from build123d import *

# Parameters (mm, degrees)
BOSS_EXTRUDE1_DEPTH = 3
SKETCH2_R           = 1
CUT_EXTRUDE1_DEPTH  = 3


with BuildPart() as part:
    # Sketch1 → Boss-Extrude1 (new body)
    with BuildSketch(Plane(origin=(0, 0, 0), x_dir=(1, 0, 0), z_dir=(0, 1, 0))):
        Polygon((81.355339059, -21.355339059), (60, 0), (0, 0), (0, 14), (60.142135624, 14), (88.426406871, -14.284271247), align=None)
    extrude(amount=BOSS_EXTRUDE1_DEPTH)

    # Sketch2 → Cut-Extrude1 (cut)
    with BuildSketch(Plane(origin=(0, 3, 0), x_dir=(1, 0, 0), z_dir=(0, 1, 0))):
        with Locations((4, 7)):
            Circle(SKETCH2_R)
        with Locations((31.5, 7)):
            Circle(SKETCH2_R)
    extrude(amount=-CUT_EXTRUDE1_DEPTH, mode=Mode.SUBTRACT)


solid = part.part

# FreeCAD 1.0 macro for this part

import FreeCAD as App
import Part
import Sketcher

V = App.Vector
Q = App.Units.Quantity


def add_polygon(sketch, points):
    """Adds a closed chain of lines whose ends are joined by coincident constraints."""
    first, n = sketch.GeometryCount, len(points)
    for a, b in zip(points, points[1:] + points[:1]):
        sketch.addGeometry(Part.LineSegment(App.Vector(*a, 0), App.Vector(*b, 0)), False)
    for i in range(n):
        sketch.addConstraint(Sketcher.Constraint("Coincident", first + i, 2, first + (i + 1) % n, 1))

doc = App.newDocument("Part")
body = doc.addObject("PartDesign::Body", "Body")

# Sketch on XZ plane
sketch1 = body.newObject("Sketcher::SketchObject", "Sketch")
sketch1.AttachmentSupport = (doc.getObject("XZ_Plane"), [""])
sketch1.MapMode = "FlatFace"
add_polygon(sketch1, [(60, 0), (81.355339, 21.355339), (88.426407, 14.284271), (60.142136, -14), (0, -14), (0, 0)])  # lines 0-5
sketch1.addConstraint([
    Sketcher.Constraint("Horizontal", 3),
    Sketcher.Constraint("Vertical", 4),
    Sketcher.Constraint("Horizontal", 5),
    Sketcher.Constraint("Coincident", 4, 2, -1, 1),
    Sketcher.Constraint("Perpendicular", 0, 1),
    Sketcher.Constraint("Perpendicular", 1, 2),
    Sketcher.Constraint("DistanceX", 5, 1, 5, 2, 60.0),
    Sketcher.Constraint("DistanceY", 4, 1, 4, 2, 14.0),
    Sketcher.Constraint("Angle", 0, Q("45 deg")),
    Sketcher.Constraint("Distance", 1, 10.0),
    Sketcher.Constraint("Distance", 2, 40.0),
])
pad1 = body.newObject("PartDesign::Pad", "Pad")
pad1.Profile = sketch1
pad1.Length = 3
pad1.Reversed = True

# Sketch on XZ plane
sketch2 = body.newObject("Sketcher::SketchObject", "Sketch001")
sketch2.AttachmentSupport = (doc.getObject("XZ_Plane"), [""])
sketch2.MapMode = "FlatFace"
sketch2.AttachmentOffset = App.Placement(V(0, 0, -3), App.Rotation())
sketch2.addGeometry([
    Part.Circle(V(4, -7, 0), V(0, 0, 1), 1),
    Part.Circle(V(31.5, -7, 0), V(0, 0, 1), 1),
], False)
sketch2.addConstraint([
    Sketcher.Constraint("Equal", 0, 1),
    Sketcher.Constraint("Horizontal", 0, 3, 1, 3),
    Sketcher.Constraint("Diameter", 0, 2.0),
    Sketcher.Constraint("DistanceX", -1, 1, 0, 3, 4.0),
    Sketcher.Constraint("DistanceY", 0, 3, -1, 1, 7.0),
    Sketcher.Constraint("DistanceX", -1, 1, 1, 3, 31.5),
])
pocket1 = body.newObject("PartDesign::Pocket", "Pocket")
pocket1.Profile = sketch2
pocket1.Length = 3
pocket1.Reversed = True

doc.recompute()
